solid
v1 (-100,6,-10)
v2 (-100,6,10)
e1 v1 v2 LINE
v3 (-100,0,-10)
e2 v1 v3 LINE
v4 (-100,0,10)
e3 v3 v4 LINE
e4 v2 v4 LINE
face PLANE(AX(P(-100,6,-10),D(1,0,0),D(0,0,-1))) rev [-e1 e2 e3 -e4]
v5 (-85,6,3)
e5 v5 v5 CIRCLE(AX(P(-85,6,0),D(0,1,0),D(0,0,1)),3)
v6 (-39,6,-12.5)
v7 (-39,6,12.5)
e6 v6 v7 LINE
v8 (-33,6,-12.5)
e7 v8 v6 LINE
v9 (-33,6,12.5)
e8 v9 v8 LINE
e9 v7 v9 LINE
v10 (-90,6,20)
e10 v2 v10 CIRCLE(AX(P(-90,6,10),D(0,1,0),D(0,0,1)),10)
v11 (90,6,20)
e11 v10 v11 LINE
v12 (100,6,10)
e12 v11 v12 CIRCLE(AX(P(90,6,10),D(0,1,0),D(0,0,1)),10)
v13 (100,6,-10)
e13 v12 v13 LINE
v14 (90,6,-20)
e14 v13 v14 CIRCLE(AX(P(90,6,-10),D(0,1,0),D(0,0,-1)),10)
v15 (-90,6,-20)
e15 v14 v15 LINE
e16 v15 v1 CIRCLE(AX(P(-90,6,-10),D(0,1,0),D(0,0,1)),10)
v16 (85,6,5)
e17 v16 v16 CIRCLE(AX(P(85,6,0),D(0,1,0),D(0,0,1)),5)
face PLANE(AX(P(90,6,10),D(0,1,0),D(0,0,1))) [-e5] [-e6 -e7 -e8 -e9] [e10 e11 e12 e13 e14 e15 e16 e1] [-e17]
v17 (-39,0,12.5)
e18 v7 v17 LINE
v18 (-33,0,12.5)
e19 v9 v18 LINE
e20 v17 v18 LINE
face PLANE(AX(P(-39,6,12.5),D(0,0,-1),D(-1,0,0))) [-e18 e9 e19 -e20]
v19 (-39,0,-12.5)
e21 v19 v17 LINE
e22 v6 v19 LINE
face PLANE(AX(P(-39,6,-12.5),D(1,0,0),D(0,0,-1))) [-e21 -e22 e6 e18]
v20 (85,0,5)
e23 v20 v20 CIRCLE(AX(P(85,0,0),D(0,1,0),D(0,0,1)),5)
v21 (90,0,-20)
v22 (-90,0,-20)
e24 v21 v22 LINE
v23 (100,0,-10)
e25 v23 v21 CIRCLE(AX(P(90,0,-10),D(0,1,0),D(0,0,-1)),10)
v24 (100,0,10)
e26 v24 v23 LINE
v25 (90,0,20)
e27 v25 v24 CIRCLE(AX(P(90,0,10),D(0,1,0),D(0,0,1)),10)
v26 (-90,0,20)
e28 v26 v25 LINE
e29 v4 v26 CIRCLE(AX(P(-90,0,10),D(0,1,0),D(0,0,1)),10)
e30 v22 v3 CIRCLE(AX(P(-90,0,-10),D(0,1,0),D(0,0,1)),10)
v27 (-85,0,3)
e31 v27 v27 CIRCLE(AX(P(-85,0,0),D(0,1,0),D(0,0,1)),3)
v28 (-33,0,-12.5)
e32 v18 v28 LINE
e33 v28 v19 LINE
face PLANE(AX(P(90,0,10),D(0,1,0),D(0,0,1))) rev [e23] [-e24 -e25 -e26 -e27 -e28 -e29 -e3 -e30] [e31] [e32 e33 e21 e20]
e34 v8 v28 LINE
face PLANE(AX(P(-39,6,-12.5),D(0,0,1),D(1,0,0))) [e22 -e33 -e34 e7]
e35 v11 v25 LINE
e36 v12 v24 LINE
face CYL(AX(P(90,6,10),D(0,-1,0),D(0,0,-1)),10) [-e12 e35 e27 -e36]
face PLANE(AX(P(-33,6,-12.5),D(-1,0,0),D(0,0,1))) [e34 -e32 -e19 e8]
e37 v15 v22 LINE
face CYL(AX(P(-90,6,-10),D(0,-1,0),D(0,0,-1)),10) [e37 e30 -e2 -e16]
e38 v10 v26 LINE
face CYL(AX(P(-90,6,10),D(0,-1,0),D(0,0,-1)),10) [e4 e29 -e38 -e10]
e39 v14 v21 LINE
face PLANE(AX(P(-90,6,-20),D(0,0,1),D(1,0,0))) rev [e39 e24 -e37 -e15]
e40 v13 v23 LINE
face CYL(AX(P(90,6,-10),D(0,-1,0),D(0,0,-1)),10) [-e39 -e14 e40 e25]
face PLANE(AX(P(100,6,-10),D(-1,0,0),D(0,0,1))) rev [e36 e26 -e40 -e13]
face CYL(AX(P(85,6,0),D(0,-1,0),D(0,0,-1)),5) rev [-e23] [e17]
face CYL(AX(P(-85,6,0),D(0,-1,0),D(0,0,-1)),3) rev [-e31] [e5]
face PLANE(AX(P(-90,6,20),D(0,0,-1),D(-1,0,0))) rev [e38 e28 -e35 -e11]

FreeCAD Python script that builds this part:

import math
import FreeCAD as App
import Part
import Sketcher

V = App.Vector


def add_polygon(sketch, points):
    """Adds a closed chain of lines whose ends are joined by coincident constraints."""
    first, n = sketch.GeometryCount, len(points)
    for a, b in zip(points, points[1:] + points[:1]):
        sketch.addGeometry(Part.LineSegment(App.Vector(*a, 0), App.Vector(*b, 0)), False)
    for i in range(n):
        sketch.addConstraint(Sketcher.Constraint("Coincident", first + i, 2, first + (i + 1) % n, 1))

doc = App.newDocument("Part")
params = doc.addObject("Spreadsheet::Sheet", "Params")
for row, (alias, value) in enumerate([
    ("sketch1_diameter", "10 mm"),
    ("sketch1_diameter2", "6 mm"),
    ("sketch1_radius", "10 mm"),
    ("sketch1_width", "180 mm"),
    ("sketch1_width2", "6 mm"),
    ("pad1_length", "6 mm"),
], start=1):
    params.set(f"A{row}", alias)
    params.set(f"B{row}", "=" + value)
    params.setAlias(f"B{row}", alias)

body = doc.addObject("PartDesign::Body", "Body")

sketch1 = body.newObject("Sketcher::SketchObject", "Sketch")
sketch1.AttachmentSupport = (doc.getObject("XZ_Plane"), [""])
sketch1.MapMode = "FlatFace"
sketch1.addGeometry(Part.LineSegment(V(90, -20, 0), V(-90, -20, 0)), False)
sketch1.addGeometry(Part.ArcOfCircle(Part.Circle(V(-90, -10, 0), V(0, 0, 1), 10), math.radians(180), math.radians(270)), False)
sketch1.addGeometry(Part.LineSegment(V(-100, -10, 0), V(-100, 10, 0)), False)
sketch1.addGeometry(Part.ArcOfCircle(Part.Circle(V(-90, 10, 0), V(0, 0, 1), 10), math.radians(90), math.radians(180)), False)
sketch1.addGeometry(Part.LineSegment(V(-90, 20, 0), V(90, 20, 0)), False)
sketch1.addGeometry(Part.ArcOfCircle(Part.Circle(V(90, 10, 0), V(0, 0, 1), 10), math.radians(0), math.radians(90)), False)
sketch1.addGeometry(Part.LineSegment(V(100, 10, 0), V(100, -10, 0)), False)
sketch1.addGeometry(Part.ArcOfCircle(Part.Circle(V(90, -10, 0), V(0, 0, 1), 10), math.radians(-90), math.radians(0)), False)
sketch1.addGeometry(Part.Circle(V(85, 0, 0), V(0, 0, 1), 5), False)
add_polygon(sketch1, [(-39, 12.5), (-39, -12.5), (-33, -12.5), (-33, 12.5)])
sketch1.addGeometry(Part.Circle(V(-85, 0, 0), V(0, 0, 1), 3), False)
sketch1.addConstraint([
    Sketcher.Constraint("Tangent", 0, 2, 1, 2),
    Sketcher.Constraint("Tangent", 1, 1, 2, 1),
    Sketcher.Constraint("Tangent", 2, 2, 3, 2),
    Sketcher.Constraint("Tangent", 3, 1, 4, 1),
    Sketcher.Constraint("Tangent", 4, 2, 5, 2),
    Sketcher.Constraint("Tangent", 5, 1, 6, 1),
    Sketcher.Constraint("Tangent", 6, 2, 7, 2),
    Sketcher.Constraint("Tangent", 7, 1, 0, 1),
    Sketcher.Constraint("Horizontal", 0),
    Sketcher.Constraint("Vertical", 2),
    Sketcher.Constraint("Horizontal", 4),
    Sketcher.Constraint("Vertical", 6),
    Sketcher.Constraint("Vertical", 9),
    Sketcher.Constraint("Horizontal", 10),
    Sketcher.Constraint("Vertical", 11),
    Sketcher.Constraint("Horizontal", 12),
    Sketcher.Constraint("Equal", 1, 3),
    Sketcher.Constraint("Equal", 3, 5),
    Sketcher.Constraint("Equal", 5, 7),
    Sketcher.Constraint("Symmetric", 1, 3, 5, 3, -1, 1),
    Sketcher.Constraint("Symmetric", 8, 3, 13, 3, -1, 1),
    Sketcher.Constraint("PointOnObject", 8, 3, -1),
    Sketcher.Constraint("Diameter", 8, 10.0),
    Sketcher.Constraint("Diameter", 13, 6.0),
    Sketcher.Constraint("Radius", 1, 10.0),
    Sketcher.Constraint("DistanceX", 0, 2, 0, 1, 180.0),
    Sketcher.Constraint("DistanceX", 10, 1, 10, 2, 6.0),
    Sketcher.Constraint("DistanceY", 2, 1, 2, 2, 20.0),
    Sketcher.Constraint("DistanceY", 9, 2, 9, 1, 25.0),
    Sketcher.Constraint("DistanceX", -1, 1, 8, 3, 85.0),
    Sketcher.Constraint("DistanceX", 9, 2, -1, 1, 39.0),
    Sketcher.Constraint("DistanceY", 9, 2, -1, 1, 12.5),
])
sketch1.setExpression("Constraints[26]", "Params.sketch1_diameter")
sketch1.setExpression("Constraints[27]", "Params.sketch1_diameter2")
sketch1.setExpression("Constraints[28]", "Params.sketch1_radius")
sketch1.setExpression("Constraints[29]", "Params.sketch1_width")
sketch1.setExpression("Constraints[30]", "Params.sketch1_width2")
pad1 = body.newObject("PartDesign::Pad", "Pad")
pad1.Profile = sketch1
pad1.setExpression("Length", "Params.pad1_length")
pad1.Reversed = True

doc.recompute()
